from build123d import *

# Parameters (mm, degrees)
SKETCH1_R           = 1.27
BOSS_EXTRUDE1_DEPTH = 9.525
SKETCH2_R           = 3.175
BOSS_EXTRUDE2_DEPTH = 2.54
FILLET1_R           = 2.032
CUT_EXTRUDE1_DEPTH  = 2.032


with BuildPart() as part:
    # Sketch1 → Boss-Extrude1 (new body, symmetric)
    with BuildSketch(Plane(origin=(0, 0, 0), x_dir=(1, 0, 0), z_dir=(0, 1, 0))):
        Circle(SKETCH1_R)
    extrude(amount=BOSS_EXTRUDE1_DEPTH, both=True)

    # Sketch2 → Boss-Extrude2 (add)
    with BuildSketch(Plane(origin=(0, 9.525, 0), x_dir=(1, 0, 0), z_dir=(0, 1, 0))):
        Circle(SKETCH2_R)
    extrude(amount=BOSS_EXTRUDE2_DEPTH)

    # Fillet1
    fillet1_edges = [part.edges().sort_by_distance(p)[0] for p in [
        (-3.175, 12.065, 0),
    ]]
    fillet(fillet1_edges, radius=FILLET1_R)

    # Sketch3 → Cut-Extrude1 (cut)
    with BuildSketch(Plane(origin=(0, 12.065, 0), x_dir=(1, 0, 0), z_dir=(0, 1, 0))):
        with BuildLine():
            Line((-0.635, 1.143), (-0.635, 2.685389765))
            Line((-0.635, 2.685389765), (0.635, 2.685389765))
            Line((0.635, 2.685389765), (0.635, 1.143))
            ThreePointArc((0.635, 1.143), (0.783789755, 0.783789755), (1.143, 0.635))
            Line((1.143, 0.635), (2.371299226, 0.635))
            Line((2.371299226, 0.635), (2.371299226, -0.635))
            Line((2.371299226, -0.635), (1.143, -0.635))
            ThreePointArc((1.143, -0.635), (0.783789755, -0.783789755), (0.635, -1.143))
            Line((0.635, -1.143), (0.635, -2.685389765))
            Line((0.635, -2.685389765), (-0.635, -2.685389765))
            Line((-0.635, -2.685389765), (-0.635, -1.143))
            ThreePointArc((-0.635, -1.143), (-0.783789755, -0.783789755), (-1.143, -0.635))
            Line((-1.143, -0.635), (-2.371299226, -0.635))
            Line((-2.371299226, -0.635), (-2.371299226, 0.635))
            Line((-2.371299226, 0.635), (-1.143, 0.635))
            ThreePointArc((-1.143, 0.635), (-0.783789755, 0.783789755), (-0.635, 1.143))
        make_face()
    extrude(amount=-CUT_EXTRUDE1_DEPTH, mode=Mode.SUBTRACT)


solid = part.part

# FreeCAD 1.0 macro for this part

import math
import FreeCAD as App
import Part
import Sketcher
from FreeCAD import Vector
Q = App.Units.Quantity


def edges_at(feature, points):
    """Names of the edges that pass closest to the given points."""
    edges = feature.Shape.Edges
    near = lambda p: min(range(len(edges)), key=lambda i: edges[i].distToShape(Part.Vertex(*p))[0])
    return sorted({f"Edge{near(p) + 1}" for p in points})

doc = App.newDocument("Part")
params = doc.addObject("Spreadsheet::Sheet", "Params")
for row, (alias, value) in enumerate([
    ("sketch1_diameter", "0.1 in"),
    ("pad1_length", "0.75 in"),
    ("sketch2_diameter", "0.25 in"),
    ("pad2_length", "0.1 in"),
    ("fillet_radius", "0.08 in"),
    ("sketch3_radius", "0.02 in"),
    ("sketch3_width", "0.05 in"),
    ("pocket1_length", "0.08 in"),
], start=1):
    params.set(f"A{row}", alias)
    params.set(f"B{row}", "=" + value)
    params.setAlias(f"B{row}", alias)

body = doc.addObject("PartDesign::Body", "Body")

sketch1 = body.newObject("Sketcher::SketchObject", "Sketch")
sketch1.AttachmentSupport = (doc.getObject("XZ_Plane"), [""])
sketch1.MapMode = "FlatFace"
sketch1.addGeometry(Part.Circle(Vector(0, 0, 0), Vector(0, 0, 1), 1.3), False)
sketch1.addConstraint([
    Sketcher.Constraint("Coincident", 0, 3, -1, 1),
    Sketcher.Constraint("Diameter", 0, Q("0.1 in")),
])
sketch1.setExpression("Constraints[1]", "Params.sketch1_diameter")
pad1 = body.newObject("PartDesign::Pad", "Pad")
pad1.Profile = sketch1
pad1.setExpression("Length", "Params.pad1_length")
pad1.Midplane = True

sketch2 = body.newObject("Sketcher::SketchObject", "Sketch001")
sketch2.AttachmentSupport = (doc.getObject("XZ_Plane"), [""])
sketch2.MapMode = "FlatFace"
sketch2.AttachmentOffset = App.Placement(Vector(0, 0, -0.375 * 25.4), App.Rotation())
sketch2.addGeometry(Part.Circle(Vector(0, 0, 0), Vector(0, 0, 1), 3.2), False)
sketch2.addConstraint([
    Sketcher.Constraint("Coincident", 0, 3, -1, 1),
    Sketcher.Constraint("Diameter", 0, Q("0.25 in")),
])
sketch2.setExpression("Constraints[1]", "Params.sketch2_diameter")
pad2 = body.newObject("PartDesign::Pad", "Pad001")
pad2.Profile = sketch2
pad2.setExpression("Length", "Params.pad2_length")
pad2.Reversed = True
doc.recompute()

fillet = body.newObject("PartDesign::Fillet", "Fillet")
fillet.Base = (pad2, edges_at(pad2, [(-3.175, 12.065, 0)]))
fillet.setExpression("Radius", "Params.fillet_radius")

sketch3 = body.newObject("Sketcher::SketchObject", "Sketch002")
sketch3.AttachmentSupport = (doc.getObject("XZ_Plane"), [""])
sketch3.MapMode = "FlatFace"
sketch3.AttachmentOffset = App.Placement(Vector(0, 0, -0.475 * 25.4), App.Rotation())
sketch3.addGeometry([
    Part.LineSegment(Vector(-0.6, -2.7, 0), Vector(-0.6, -1.1, 0)),
    Part.ArcOfCircle(Part.Circle(Vector(-1.1, -1.1, 0), Vector(0, 0, 1), 0.5), math.radians(0), math.radians(90)),
    Part.LineSegment(Vector(-1.1, -0.6, 0), Vector(-2.4, -0.6, 0)),
    Part.LineSegment(Vector(-2.4, -0.6, 0), Vector(-2.4, 0.6, 0)),
    Part.LineSegment(Vector(-2.4, 0.6, 0), Vector(-1.1, 0.6, 0)),
    Part.ArcOfCircle(Part.Circle(Vector(-1.1, 1.1, 0), Vector(0, 0, 1), 0.5), math.radians(-90), math.radians(0)),
    Part.LineSegment(Vector(-0.6, 1.1, 0), Vector(-0.6, 2.7, 0)),
    Part.LineSegment(Vector(-0.6, 2.7, 0), Vector(0.6, 2.7, 0)),
    Part.LineSegment(Vector(0.6, 2.7, 0), Vector(0.6, 1.1, 0)),
    Part.ArcOfCircle(Part.Circle(Vector(1.1, 1.1, 0), Vector(0, 0, 1), 0.5), math.radians(180), math.radians(270)),
    Part.LineSegment(Vector(1.1, 0.6, 0), Vector(2.4, 0.6, 0)),
    Part.LineSegment(Vector(2.4, 0.6, 0), Vector(2.4, -0.6, 0)),
    Part.LineSegment(Vector(2.4, -0.6, 0), Vector(1.1, -0.6, 0)),
    Part.ArcOfCircle(Part.Circle(Vector(1.1, -1.1, 0), Vector(0, 0, 1), 0.5), math.radians(90), math.radians(180)),
    Part.LineSegment(Vector(0.6, -1.1, 0), Vector(0.6, -2.7, 0)),
    Part.LineSegment(Vector(0.6, -2.7, 0), Vector(-0.6, -2.7, 0)),
], False)
sketch3.addConstraint([
    Sketcher.Constraint("Tangent", 0, 2, 1, 1),
    Sketcher.Constraint("Tangent", 1, 2, 2, 1),
    Sketcher.Constraint("Coincident", 2, 2, 3, 1),
    Sketcher.Constraint("Coincident", 3, 2, 4, 1),
    Sketcher.Constraint("Tangent", 4, 2, 5, 1),
    Sketcher.Constraint("Tangent", 5, 2, 6, 1),
    Sketcher.Constraint("Coincident", 6, 2, 7, 1),
    Sketcher.Constraint("Coincident", 7, 2, 8, 1),
    Sketcher.Constraint("Tangent", 8, 2, 9, 1),
    Sketcher.Constraint("Tangent", 9, 2, 10, 1),
    Sketcher.Constraint("Coincident", 10, 2, 11, 1),
    Sketcher.Constraint("Coincident", 11, 2, 12, 1),
    Sketcher.Constraint("Tangent", 12, 2, 13, 1),
    Sketcher.Constraint("Tangent", 13, 2, 14, 1),
    Sketcher.Constraint("Coincident", 14, 2, 15, 1),
    Sketcher.Constraint("Coincident", 15, 2, 0, 1),
    Sketcher.Constraint("Vertical", 0),
    Sketcher.Constraint("Horizontal", 2),
    Sketcher.Constraint("Vertical", 3),
    Sketcher.Constraint("Horizontal", 4),
    Sketcher.Constraint("Vertical", 6),
    Sketcher.Constraint("Horizontal", 7),
    Sketcher.Constraint("Vertical", 8),
    Sketcher.Constraint("Horizontal", 10),
    Sketcher.Constraint("Vertical", 11),
    Sketcher.Constraint("Horizontal", 12),
    Sketcher.Constraint("Vertical", 14),
    Sketcher.Constraint("Horizontal", 15),
    Sketcher.Constraint("Equal", 1, 5),
    Sketcher.Constraint("Equal", 5, 9),
    Sketcher.Constraint("Equal", 9, 13),
    Sketcher.Constraint("Symmetric", 1, 3, 9, 3, -1, 1),
    Sketcher.Constraint("Symmetric", 5, 3, 13, 3, -1, 1),
    Sketcher.Constraint("Symmetric", 5, 3, 9, 3, -2),
    Sketcher.Constraint("Equal", 4, 10),
    Sketcher.Constraint("Equal", 15, 3),
    Sketcher.Constraint("Equal", 0, 6),
    Sketcher.Constraint("Radius", 1, Q("0.02 in")),
    Sketcher.Constraint("DistanceX", 7, 1, 7, 2, Q("0.05 in")),
    Sketcher.Constraint("DistanceX", 2, 2, 2, 1, 1.228299),
    Sketcher.Constraint("DistanceY", 0, 1, 0, 2, 1.54239),
])
sketch3.setExpression("Constraints[37]", "Params.sketch3_radius")
sketch3.setExpression("Constraints[38]", "Params.sketch3_width")
pocket1 = body.newObject("PartDesign::Pocket", "Pocket")
pocket1.Profile = sketch3
pocket1.setExpression("Length", "Params.pocket1_length")
pocket1.Reversed = True

doc.recompute()
